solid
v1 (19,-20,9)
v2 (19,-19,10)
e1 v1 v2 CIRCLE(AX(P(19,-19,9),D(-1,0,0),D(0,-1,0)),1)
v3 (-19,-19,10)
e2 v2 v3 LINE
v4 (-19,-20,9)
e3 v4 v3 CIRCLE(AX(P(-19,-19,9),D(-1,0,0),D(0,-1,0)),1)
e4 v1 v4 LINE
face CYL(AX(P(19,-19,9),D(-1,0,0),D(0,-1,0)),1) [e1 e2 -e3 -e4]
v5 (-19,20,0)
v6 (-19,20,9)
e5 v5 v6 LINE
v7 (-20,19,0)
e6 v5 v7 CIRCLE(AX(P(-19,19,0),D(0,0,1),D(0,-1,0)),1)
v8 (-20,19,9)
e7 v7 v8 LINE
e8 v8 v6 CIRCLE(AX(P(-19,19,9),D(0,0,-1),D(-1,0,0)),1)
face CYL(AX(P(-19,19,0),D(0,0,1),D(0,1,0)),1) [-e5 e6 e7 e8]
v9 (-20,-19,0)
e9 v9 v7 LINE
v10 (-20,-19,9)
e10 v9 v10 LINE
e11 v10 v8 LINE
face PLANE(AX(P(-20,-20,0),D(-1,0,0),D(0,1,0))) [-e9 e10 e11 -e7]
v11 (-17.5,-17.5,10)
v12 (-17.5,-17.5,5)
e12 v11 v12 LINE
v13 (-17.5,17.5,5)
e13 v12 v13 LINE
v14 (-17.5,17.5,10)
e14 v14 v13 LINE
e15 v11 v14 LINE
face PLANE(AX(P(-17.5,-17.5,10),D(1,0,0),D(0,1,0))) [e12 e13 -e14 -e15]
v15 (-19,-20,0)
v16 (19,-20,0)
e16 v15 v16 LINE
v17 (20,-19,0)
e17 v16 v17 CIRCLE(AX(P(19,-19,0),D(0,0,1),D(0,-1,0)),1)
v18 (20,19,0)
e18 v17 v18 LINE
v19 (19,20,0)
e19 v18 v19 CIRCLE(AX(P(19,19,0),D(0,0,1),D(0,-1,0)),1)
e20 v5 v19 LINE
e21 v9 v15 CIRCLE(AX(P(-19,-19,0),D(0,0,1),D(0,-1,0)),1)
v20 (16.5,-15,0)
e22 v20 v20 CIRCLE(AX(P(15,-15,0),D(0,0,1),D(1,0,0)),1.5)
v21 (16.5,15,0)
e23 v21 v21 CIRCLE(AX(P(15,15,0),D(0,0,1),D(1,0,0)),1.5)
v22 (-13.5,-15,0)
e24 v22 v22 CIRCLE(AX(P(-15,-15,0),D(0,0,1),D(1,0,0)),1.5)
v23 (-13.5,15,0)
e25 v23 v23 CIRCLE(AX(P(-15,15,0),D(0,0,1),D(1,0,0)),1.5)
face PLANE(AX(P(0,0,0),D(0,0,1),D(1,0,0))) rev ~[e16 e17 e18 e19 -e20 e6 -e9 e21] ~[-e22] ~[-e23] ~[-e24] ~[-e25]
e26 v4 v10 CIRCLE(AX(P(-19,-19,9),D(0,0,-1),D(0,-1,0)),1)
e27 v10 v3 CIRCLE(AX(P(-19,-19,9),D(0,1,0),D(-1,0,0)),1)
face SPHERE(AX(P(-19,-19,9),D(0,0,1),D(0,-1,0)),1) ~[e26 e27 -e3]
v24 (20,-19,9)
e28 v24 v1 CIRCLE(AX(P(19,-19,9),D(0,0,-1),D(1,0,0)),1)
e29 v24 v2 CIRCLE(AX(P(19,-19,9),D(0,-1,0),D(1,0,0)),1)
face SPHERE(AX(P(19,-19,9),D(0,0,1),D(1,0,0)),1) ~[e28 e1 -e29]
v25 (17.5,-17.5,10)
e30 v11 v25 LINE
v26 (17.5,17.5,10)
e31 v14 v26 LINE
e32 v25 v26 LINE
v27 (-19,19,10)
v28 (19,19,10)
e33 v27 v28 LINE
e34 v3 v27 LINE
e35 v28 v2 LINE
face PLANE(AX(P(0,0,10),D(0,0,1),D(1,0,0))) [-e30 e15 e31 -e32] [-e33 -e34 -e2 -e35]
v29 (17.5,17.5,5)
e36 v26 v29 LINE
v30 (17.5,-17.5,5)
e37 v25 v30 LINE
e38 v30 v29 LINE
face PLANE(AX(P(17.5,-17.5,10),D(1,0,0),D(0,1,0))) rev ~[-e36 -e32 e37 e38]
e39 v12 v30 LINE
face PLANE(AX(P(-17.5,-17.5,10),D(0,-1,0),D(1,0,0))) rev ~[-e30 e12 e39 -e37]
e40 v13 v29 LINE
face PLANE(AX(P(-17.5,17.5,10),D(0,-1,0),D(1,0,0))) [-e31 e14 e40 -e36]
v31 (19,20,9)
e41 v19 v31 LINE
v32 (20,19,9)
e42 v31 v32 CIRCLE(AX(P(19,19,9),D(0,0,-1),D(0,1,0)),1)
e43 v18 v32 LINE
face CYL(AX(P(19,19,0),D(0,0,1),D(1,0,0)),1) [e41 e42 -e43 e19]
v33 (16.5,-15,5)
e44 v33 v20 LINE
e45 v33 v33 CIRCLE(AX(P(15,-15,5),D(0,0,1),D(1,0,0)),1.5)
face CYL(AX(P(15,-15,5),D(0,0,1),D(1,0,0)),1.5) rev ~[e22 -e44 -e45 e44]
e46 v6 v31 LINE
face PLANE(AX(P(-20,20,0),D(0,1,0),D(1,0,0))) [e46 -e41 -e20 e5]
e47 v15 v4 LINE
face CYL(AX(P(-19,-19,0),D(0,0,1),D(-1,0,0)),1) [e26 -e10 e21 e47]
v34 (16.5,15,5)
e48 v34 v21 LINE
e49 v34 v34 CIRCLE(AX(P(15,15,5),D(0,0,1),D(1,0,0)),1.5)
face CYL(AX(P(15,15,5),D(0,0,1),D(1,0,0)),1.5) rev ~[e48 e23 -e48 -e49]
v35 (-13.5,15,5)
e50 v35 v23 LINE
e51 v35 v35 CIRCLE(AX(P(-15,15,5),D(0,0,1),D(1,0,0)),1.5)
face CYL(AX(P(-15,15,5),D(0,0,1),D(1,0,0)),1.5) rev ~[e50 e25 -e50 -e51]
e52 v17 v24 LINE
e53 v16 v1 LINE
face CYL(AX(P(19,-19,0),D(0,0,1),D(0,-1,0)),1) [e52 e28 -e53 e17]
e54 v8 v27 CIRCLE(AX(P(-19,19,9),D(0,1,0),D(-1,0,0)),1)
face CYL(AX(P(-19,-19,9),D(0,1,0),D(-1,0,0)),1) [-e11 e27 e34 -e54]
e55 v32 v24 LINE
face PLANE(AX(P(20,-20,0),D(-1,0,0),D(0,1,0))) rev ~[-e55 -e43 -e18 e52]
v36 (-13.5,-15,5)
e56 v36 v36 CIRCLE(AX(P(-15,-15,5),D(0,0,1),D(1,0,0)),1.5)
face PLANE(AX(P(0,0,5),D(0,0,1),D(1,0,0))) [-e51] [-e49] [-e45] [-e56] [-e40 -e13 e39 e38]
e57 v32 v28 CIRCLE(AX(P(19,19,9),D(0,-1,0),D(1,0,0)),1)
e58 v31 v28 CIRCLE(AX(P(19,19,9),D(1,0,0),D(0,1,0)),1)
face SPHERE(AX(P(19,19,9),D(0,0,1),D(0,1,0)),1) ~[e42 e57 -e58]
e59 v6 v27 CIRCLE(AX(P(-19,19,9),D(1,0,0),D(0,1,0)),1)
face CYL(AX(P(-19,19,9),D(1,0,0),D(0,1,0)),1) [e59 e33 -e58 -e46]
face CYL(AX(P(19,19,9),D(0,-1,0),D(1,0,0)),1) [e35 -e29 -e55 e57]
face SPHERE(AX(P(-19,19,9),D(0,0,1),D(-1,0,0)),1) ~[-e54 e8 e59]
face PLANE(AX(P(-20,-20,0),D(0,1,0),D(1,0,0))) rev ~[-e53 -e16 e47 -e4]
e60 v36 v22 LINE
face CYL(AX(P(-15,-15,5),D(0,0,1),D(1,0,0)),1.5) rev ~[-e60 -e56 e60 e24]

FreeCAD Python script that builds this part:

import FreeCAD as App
import Part
import Sketcher

V = App.Vector
Q = App.Units.Quantity


def edges_at(feature, points):
    """Names of the edges that pass closest to the given points."""
    edges = feature.Shape.Edges
    near = lambda p: min(range(len(edges)), key=lambda i: edges[i].distToShape(Part.Vertex(*p))[0])
    return sorted({f"Edge{near(p) + 1}" for p in points})

doc = App.newDocument("Part")
body = doc.addObject("PartDesign::Body", "Body")

sketch1 = doc.addObject("Sketcher::SketchObject", "Sketch")
body.addObject(sketch1)
sketch1.AttachmentSupport = (doc.XY_Plane, [""])
sketch1.MapMode = "FlatFace"
sketch1.addGeometry([
    Part.LineSegment(V(-20, 20, 0), V(-20, -20, 0)),
    Part.LineSegment(V(-20, -20, 0), V(20, -20, 0)),
    Part.LineSegment(V(20, -20, 0), V(20, 20, 0)),
    Part.LineSegment(V(20, 20, 0), V(-20, 20, 0)),
], False)
sketch1.addConstraint([
    Sketcher.Constraint("Coincident", 0, 2, 1, 1),
    Sketcher.Constraint("Coincident", 1, 2, 2, 1),
    Sketcher.Constraint("Coincident", 2, 2, 3, 1),
    Sketcher.Constraint("Coincident", 3, 2, 0, 1),
    Sketcher.Constraint("Vertical", 0),
    Sketcher.Constraint("Horizontal", 1),
    Sketcher.Constraint("Vertical", 2),
    Sketcher.Constraint("Horizontal", 3),
    Sketcher.Constraint("Symmetric", 0, 2, 2, 2, -1, 1),
    Sketcher.Constraint("Equal", 3, 0),
    Sketcher.Constraint("DistanceX", 1, 1, 1, 2, Q("40 mm")),
])
pad1 = doc.addObject("PartDesign::Pad", "Pad")
body.addObject(pad1)
pad1.Profile = sketch1
pad1.Length = 10

sketch2 = doc.addObject("Sketcher::SketchObject", "Sketch001")
body.addObject(sketch2)
sketch2.AttachmentSupport = (doc.XY_Plane, [""])
sketch2.MapMode = "FlatFace"
sketch2.AttachmentOffset = App.Placement(V(0, 0, 10), App.Rotation())
sketch2.addGeometry([
    Part.LineSegment(V(-18, 18, 0), V(-18, -18, 0)),
    Part.LineSegment(V(-18, -18, 0), V(18, -18, 0)),
    Part.LineSegment(V(18, -18, 0), V(18, 18, 0)),
    Part.LineSegment(V(18, 18, 0), V(-18, 18, 0)),
], False)
sketch2.addConstraint([
    Sketcher.Constraint("Coincident", 0, 2, 1, 1),
    Sketcher.Constraint("Coincident", 1, 2, 2, 1),
    Sketcher.Constraint("Coincident", 2, 2, 3, 1),
    Sketcher.Constraint("Coincident", 3, 2, 0, 1),
    Sketcher.Constraint("Vertical", 0),
    Sketcher.Constraint("Horizontal", 1),
    Sketcher.Constraint("Vertical", 2),
    Sketcher.Constraint("Horizontal", 3),
    Sketcher.Constraint("Symmetric", 0, 2, 2, 2, -1, 1),
    Sketcher.Constraint("Equal", 3, 0),
    Sketcher.Constraint("DistanceX", 1, 1, 1, 2, Q("35 mm")),
])
pocket1 = doc.addObject("PartDesign::Pocket", "Pocket")
body.addObject(pocket1)
pocket1.Profile = sketch2
pocket1.Length = 5
doc.recompute()

fillet = doc.addObject("PartDesign::Fillet", "Fillet")
body.addObject(fillet)
fillet.Base = (pocket1, edges_at(pocket1, [(-20, -20, 5)]))
fillet.Radius = 1
doc.recompute()

fillet2 = doc.addObject("PartDesign::Fillet", "Fillet001")
body.addObject(fillet2)
fillet2.Base = (fillet, edges_at(fillet, [(20, -20, 5)]))
fillet2.Radius = 1
doc.recompute()

fillet3 = doc.addObject("PartDesign::Fillet", "Fillet002")
body.addObject(fillet3)
fillet3.Base = (fillet2, edges_at(fillet2, [(20, 20, 5)]))
fillet3.Radius = 1
doc.recompute()

fillet4 = doc.addObject("PartDesign::Fillet", "Fillet003")
body.addObject(fillet4)
fillet4.Base = (fillet3, edges_at(fillet3, [(-20, 20, 5)]))
fillet4.Radius = 1
doc.recompute()

fillet5 = doc.addObject("PartDesign::Fillet", "Fillet004")
body.addObject(fillet5)
fillet5.Base = (fillet4, edges_at(fillet4, [(-20, 0, 10)]))
fillet5.Radius = 1

sketch3 = doc.addObject("Sketcher::SketchObject", "Sketch002")
body.addObject(sketch3)
sketch3.AttachmentSupport = (doc.XY_Plane, [""])
sketch3.MapMode = "FlatFace"
sketch3.AttachmentOffset = App.Placement(V(0, 0, 5), App.Rotation())
sketch3.addGeometry([
    Part.Circle(V(-15, 15, 0), V(0, 0, 1), 1.5),
    Part.Circle(V(15, 15, 0), V(0, 0, 1), 1.5),
    Part.Circle(V(-15, -15, 0), V(0, 0, 1), 1.5),
    Part.Circle(V(15, -15, 0), V(0, 0, 1), 1.5),
], False)
sketch3.addConstraint([
    Sketcher.Constraint("Equal", 0, 1),
    Sketcher.Constraint("Equal", 1, 2),
    Sketcher.Constraint("Equal", 2, 3),
    Sketcher.Constraint("Symmetric", 1, 3, 2, 3, -1, 1),
    Sketcher.Constraint("Symmetric", 0, 3, 3, 3, -1, 1),
    Sketcher.Constraint("Symmetric", 0, 3, 1, 3, -2),
    Sketcher.Constraint("Diameter", 0, Q("3 mm")),
    Sketcher.Constraint("DistanceX", 0, 3, -1, 1, Q("15 mm")),
    Sketcher.Constraint("DistanceY", -1, 1, 0, 3, Q("15 mm")),
])
pocket2 = doc.addObject("PartDesign::Pocket", "Pocket001")
body.addObject(pocket2)
pocket2.Profile = sketch3
pocket2.Length = 25

doc.recompute()
